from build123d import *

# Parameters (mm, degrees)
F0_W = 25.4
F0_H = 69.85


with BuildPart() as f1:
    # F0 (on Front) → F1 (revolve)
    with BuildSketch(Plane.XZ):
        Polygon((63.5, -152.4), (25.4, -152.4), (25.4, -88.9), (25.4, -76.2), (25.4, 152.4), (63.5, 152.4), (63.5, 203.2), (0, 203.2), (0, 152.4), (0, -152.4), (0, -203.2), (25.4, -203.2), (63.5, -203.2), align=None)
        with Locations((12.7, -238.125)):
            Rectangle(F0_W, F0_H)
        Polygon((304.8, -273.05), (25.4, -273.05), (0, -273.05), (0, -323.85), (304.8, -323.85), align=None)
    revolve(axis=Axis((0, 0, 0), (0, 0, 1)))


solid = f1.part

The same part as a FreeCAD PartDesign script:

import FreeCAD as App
import Part
import Sketcher

V = App.Vector
Q = App.Units.Quantity

doc = App.newDocument("Part")
body = doc.addObject("PartDesign::Body", "Body")

# Sketch on XZ plane
sketch1 = body.newObject("Sketcher::SketchObject", "Sketch")
sketch1.AttachmentSupport = (doc.getObject("XZ_Plane"), [""])
sketch1.MapMode = "FlatFace"
sketch1.addGeometry(Part.LineSegment(V(63.5, -152.4, 0), V(25.4, -152.4, 0)), False)
sketch1.addGeometry(Part.LineSegment(V(25.4, -152.4, 0), V(25.4, 152.4, 0)), False)
sketch1.addGeometry(Part.LineSegment(V(25.4, 152.4, 0), V(63.5, 152.4, 0)), False)
sketch1.addGeometry(Part.LineSegment(V(63.5, 152.4, 0), V(63.5, 203.2, 0)), False)
sketch1.addGeometry(Part.LineSegment(V(63.5, 203.2, 0), V(0, 203.2, 0)), False)
sketch1.addGeometry(Part.LineSegment(V(0, 203.2, 0), V(0, -323.85, 0)), False)
sketch1.addGeometry(Part.LineSegment(V(0, -323.85, 0), V(304.8, -323.85, 0)), False)
sketch1.addGeometry(Part.LineSegment(V(304.8, -323.85, 0), V(304.8, -273.05, 0)), False)
sketch1.addGeometry(Part.LineSegment(V(304.8, -273.05, 0), V(25.4, -273.05, 0)), False)
sketch1.addGeometry(Part.LineSegment(V(25.4, -273.05, 0), V(25.4, -203.2, 0)), False)
sketch1.addGeometry(Part.LineSegment(V(25.4, -203.2, 0), V(63.5, -203.2, 0)), False)
sketch1.addGeometry(Part.LineSegment(V(63.5, -203.2, 0), V(63.5, -152.4, 0)), False)
sketch1.addConstraint(Sketcher.Constraint("Coincident", 0, 2, 1, 1))
sketch1.addConstraint(Sketcher.Constraint("Coincident", 1, 2, 2, 1))
sketch1.addConstraint(Sketcher.Constraint("Coincident", 2, 2, 3, 1))
sketch1.addConstraint(Sketcher.Constraint("Coincident", 3, 2, 4, 1))
sketch1.addConstraint(Sketcher.Constraint("Coincident", 4, 2, 5, 1))
sketch1.addConstraint(Sketcher.Constraint("Coincident", 5, 2, 6, 1))
sketch1.addConstraint(Sketcher.Constraint("Coincident", 6, 2, 7, 1))
sketch1.addConstraint(Sketcher.Constraint("Coincident", 7, 2, 8, 1))
sketch1.addConstraint(Sketcher.Constraint("Coincident", 8, 2, 9, 1))
sketch1.addConstraint(Sketcher.Constraint("Coincident", 9, 2, 10, 1))
sketch1.addConstraint(Sketcher.Constraint("Coincident", 10, 2, 11, 1))
sketch1.addConstraint(Sketcher.Constraint("Coincident", 11, 2, 0, 1))
sketch1.addConstraint(Sketcher.Constraint("Horizontal", 0))
sketch1.addConstraint(Sketcher.Constraint("Vertical", 1))
sketch1.addConstraint(Sketcher.Constraint("Horizontal", 2))
sketch1.addConstraint(Sketcher.Constraint("Vertical", 3))
sketch1.addConstraint(Sketcher.Constraint("Horizontal", 4))
sketch1.addConstraint(Sketcher.Constraint("Vertical", 5))
sketch1.addConstraint(Sketcher.Constraint("Horizontal", 6))
sketch1.addConstraint(Sketcher.Constraint("Vertical", 7))
sketch1.addConstraint(Sketcher.Constraint("Horizontal", 8))
sketch1.addConstraint(Sketcher.Constraint("Vertical", 9))
sketch1.addConstraint(Sketcher.Constraint("Horizontal", 10))
sketch1.addConstraint(Sketcher.Constraint("Vertical", 11))
sketch1.addConstraint(Sketcher.Constraint("Symmetric", 3, 2, 10, 2, -1))
sketch1.addConstraint(Sketcher.Constraint("PointOnObject", 4, 2, -2))
sketch1.addConstraint(Sketcher.Constraint("Vertical", 1, 2, 8, 2))
sketch1.addConstraint(Sketcher.Constraint("Equal", 6, 1))
sketch1.addConstraint(Sketcher.Constraint("Equal", 3, 7))
sketch1.addConstraint(Sketcher.Constraint("Equal", 7, 11))
sketch1.addConstraint(Sketcher.Constraint("DistanceX", 6, 1, 6, 2, Q("12 in")))
sketch1.addConstraint(Sketcher.Constraint("DistanceX", 8, 2, 8, 1, Q("11 in")))
sketch1.addConstraint(Sketcher.Constraint("DistanceY", 3, 1, 3, 2, Q("2 in")))
sketch1.addConstraint(Sketcher.Constraint("DistanceX", 0, 2, 0, 1, Q("1.5 in")))
sketch1.addConstraint(Sketcher.Constraint("DistanceY", 5, 2, 5, 1, Q("20.75 in")))
revolution = body.newObject("PartDesign::Revolution", "Revolution")
revolution.Profile = sketch1
revolution.ReferenceAxis = (sketch1, ["V_Axis"])
revolution.Angle = 360

doc.recompute()
